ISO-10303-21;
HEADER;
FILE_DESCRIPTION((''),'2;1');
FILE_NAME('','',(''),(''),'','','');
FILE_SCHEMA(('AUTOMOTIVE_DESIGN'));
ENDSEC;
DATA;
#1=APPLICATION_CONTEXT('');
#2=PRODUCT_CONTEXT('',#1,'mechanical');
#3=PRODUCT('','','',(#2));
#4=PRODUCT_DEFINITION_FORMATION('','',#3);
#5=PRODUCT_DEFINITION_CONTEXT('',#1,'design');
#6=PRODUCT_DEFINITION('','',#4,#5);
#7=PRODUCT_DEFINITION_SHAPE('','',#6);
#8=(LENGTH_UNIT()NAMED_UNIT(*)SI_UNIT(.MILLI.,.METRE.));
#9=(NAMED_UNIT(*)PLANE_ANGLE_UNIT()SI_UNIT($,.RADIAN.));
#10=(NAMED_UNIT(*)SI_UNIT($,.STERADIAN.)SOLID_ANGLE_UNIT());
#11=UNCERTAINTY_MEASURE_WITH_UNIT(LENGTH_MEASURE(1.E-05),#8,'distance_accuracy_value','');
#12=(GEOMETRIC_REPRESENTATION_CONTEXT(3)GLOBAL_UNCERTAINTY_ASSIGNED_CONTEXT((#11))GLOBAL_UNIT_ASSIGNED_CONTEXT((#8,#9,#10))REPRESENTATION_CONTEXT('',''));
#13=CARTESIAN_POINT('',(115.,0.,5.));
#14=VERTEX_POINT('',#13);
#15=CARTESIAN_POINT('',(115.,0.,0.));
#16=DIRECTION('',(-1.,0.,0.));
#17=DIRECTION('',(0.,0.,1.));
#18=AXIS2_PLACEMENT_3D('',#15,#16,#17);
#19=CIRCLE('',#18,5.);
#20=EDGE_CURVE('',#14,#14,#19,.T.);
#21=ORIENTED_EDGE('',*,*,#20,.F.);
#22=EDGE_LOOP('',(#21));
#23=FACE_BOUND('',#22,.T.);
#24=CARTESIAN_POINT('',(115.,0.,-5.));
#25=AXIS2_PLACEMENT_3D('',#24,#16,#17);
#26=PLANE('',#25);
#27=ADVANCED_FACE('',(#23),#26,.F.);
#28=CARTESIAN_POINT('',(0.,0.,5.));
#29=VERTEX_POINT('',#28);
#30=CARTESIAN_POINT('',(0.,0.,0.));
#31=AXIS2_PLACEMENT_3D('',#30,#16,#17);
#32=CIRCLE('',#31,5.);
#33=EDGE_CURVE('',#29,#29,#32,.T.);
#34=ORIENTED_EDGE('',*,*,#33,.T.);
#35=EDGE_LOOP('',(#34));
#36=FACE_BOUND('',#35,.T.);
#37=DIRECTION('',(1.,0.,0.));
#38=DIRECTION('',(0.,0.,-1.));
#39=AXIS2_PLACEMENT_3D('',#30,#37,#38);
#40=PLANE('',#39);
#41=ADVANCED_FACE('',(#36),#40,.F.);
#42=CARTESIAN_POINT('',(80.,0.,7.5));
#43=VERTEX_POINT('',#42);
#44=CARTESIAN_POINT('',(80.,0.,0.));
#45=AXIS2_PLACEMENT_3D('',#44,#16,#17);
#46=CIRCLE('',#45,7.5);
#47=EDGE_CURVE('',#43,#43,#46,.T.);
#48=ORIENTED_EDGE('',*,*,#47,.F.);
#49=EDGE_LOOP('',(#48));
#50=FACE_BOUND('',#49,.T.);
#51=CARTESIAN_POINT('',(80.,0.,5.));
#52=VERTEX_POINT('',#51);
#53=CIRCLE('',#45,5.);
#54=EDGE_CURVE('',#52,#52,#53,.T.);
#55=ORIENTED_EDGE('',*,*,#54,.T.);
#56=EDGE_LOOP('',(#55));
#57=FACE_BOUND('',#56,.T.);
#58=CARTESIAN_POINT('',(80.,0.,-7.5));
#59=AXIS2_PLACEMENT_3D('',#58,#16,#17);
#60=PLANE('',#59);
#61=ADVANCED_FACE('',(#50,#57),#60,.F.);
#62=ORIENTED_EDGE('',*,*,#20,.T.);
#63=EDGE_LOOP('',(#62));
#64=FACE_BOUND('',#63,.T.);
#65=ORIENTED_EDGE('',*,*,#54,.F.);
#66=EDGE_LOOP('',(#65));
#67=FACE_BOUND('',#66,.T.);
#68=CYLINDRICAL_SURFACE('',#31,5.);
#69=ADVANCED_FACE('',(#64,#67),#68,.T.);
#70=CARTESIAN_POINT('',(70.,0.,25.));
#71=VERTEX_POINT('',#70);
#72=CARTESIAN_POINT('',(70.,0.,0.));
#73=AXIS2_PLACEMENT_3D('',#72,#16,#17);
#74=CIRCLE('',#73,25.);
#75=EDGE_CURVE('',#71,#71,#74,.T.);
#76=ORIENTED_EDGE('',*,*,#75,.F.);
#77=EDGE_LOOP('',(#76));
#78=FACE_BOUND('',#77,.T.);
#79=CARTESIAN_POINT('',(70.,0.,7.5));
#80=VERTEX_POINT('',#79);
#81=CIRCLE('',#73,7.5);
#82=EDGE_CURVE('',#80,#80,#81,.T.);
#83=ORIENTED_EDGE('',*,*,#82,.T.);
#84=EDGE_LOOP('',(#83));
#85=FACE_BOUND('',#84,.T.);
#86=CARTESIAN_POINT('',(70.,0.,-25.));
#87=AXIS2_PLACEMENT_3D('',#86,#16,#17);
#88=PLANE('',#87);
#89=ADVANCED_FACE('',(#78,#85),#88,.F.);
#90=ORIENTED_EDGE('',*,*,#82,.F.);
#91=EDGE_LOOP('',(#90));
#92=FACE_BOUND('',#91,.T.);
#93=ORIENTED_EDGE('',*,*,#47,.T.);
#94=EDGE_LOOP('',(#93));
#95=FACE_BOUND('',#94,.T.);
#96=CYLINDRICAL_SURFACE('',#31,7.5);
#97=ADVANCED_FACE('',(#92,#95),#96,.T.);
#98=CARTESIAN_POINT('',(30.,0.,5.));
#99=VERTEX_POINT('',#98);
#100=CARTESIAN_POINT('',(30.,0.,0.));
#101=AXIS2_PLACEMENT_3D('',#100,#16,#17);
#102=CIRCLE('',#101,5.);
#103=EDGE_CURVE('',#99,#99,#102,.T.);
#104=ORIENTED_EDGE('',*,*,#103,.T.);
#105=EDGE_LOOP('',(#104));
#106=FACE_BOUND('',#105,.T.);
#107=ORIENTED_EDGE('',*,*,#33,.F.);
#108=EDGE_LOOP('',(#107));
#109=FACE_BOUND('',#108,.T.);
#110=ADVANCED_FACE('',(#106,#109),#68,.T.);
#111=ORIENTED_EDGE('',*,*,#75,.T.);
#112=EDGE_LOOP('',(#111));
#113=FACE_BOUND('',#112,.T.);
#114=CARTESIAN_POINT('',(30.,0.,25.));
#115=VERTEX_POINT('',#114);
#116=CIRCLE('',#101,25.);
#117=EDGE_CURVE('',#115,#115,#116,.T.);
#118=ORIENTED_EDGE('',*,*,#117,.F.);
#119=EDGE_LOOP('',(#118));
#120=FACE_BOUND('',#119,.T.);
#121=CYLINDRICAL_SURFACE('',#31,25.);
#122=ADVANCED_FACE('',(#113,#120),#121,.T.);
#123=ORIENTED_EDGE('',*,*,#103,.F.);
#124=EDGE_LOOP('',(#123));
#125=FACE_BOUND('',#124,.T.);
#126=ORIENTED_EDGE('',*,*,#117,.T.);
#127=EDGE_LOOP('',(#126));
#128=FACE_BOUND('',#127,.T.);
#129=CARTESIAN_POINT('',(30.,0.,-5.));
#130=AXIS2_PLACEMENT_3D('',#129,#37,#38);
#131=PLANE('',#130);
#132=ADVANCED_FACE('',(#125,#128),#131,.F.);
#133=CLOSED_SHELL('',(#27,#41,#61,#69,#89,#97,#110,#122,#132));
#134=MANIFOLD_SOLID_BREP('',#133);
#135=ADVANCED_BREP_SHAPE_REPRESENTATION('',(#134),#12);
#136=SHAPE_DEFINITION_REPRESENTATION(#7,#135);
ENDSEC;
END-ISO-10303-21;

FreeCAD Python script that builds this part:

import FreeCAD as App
import Part
import Sketcher
Q = App.Units.Quantity

doc = App.newDocument("Part")
body = doc.addObject("PartDesign::Body", "Body")

# Sketch on XZ plane
sketch1 = body.newObject("Sketcher::SketchObject", "Sketch")
sketch1.AttachmentSupport = (doc.getObject("XZ_Plane"), [""])
sketch1.MapMode = "FlatFace"
sketch1.addGeometry([
    Part.LineSegment(App.Vector(0, -5, 0), App.Vector(0, 0, 0)),  # 0
    Part.LineSegment(App.Vector(0, 0, 0), App.Vector(115, 0, 0)),  # 1
    Part.LineSegment(App.Vector(115, 0, 0), App.Vector(115, -5, 0)),  # 2
    Part.LineSegment(App.Vector(115, -5, 0), App.Vector(80, -5, 0)),  # 3
    Part.LineSegment(App.Vector(80, -5, 0), App.Vector(80, -7.5, 0)),  # 4
    Part.LineSegment(App.Vector(80, -7.5, 0), App.Vector(70, -7.5, 0)),  # 5
    Part.LineSegment(App.Vector(70, -7.5, 0), App.Vector(70, -25, 0)),  # 6
    Part.LineSegment(App.Vector(70, -25, 0), App.Vector(30, -25, 0)),  # 7
    Part.LineSegment(App.Vector(30, -25, 0), App.Vector(30, -5, 0)),  # 8
    Part.LineSegment(App.Vector(30, -5, 0), App.Vector(0, -5, 0)),  # 9
], False)
sketch1.addConstraint([
    Sketcher.Constraint("Coincident", 0, 2, 1, 1),
    Sketcher.Constraint("Coincident", 1, 2, 2, 1),
    Sketcher.Constraint("Coincident", 2, 2, 3, 1),
    Sketcher.Constraint("Coincident", 3, 2, 4, 1),
    Sketcher.Constraint("Coincident", 4, 2, 5, 1),
    Sketcher.Constraint("Coincident", 5, 2, 6, 1),
    Sketcher.Constraint("Coincident", 6, 2, 7, 1),
    Sketcher.Constraint("Coincident", 7, 2, 8, 1),
    Sketcher.Constraint("Coincident", 8, 2, 9, 1),
    Sketcher.Constraint("Coincident", 9, 2, 0, 1),
    Sketcher.Constraint("Vertical", 0),
    Sketcher.Constraint("Horizontal", 1),
    Sketcher.Constraint("Vertical", 2),
    Sketcher.Constraint("Horizontal", 3),
    Sketcher.Constraint("Vertical", 4),
    Sketcher.Constraint("Horizontal", 5),
    Sketcher.Constraint("Vertical", 6),
    Sketcher.Constraint("Horizontal", 7),
    Sketcher.Constraint("Vertical", 8),
    Sketcher.Constraint("Horizontal", 9),
    Sketcher.Constraint("Coincident", 0, 2, -1, 1),
    Sketcher.Constraint("Horizontal", 3, 2, 8, 2),
    Sketcher.Constraint("DistanceX", 1, 1, 1, 2, Q("115 mm")),
    Sketcher.Constraint("DistanceX", 3, 2, 3, 1, Q("35 mm")),
    Sketcher.Constraint("DistanceX", 5, 2, 5, 1, Q("10 mm")),
    Sketcher.Constraint("DistanceX", 7, 2, 7, 1, Q("40 mm")),
    Sketcher.Constraint("DistanceY", 0, 1, 0, 2, Q("5 mm")),
    Sketcher.Constraint("DistanceY", 8, 1, 8, 2, Q("20 mm")),
    Sketcher.Constraint("DistanceY", 4, 2, 4, 1, Q("2.5 mm")),
])
revolution = body.newObject("PartDesign::Revolution", "Revolution")
revolution.Profile = sketch1
revolution.ReferenceAxis = (sketch1, ["H_Axis"])
revolution.Angle = 360

doc.recompute()
